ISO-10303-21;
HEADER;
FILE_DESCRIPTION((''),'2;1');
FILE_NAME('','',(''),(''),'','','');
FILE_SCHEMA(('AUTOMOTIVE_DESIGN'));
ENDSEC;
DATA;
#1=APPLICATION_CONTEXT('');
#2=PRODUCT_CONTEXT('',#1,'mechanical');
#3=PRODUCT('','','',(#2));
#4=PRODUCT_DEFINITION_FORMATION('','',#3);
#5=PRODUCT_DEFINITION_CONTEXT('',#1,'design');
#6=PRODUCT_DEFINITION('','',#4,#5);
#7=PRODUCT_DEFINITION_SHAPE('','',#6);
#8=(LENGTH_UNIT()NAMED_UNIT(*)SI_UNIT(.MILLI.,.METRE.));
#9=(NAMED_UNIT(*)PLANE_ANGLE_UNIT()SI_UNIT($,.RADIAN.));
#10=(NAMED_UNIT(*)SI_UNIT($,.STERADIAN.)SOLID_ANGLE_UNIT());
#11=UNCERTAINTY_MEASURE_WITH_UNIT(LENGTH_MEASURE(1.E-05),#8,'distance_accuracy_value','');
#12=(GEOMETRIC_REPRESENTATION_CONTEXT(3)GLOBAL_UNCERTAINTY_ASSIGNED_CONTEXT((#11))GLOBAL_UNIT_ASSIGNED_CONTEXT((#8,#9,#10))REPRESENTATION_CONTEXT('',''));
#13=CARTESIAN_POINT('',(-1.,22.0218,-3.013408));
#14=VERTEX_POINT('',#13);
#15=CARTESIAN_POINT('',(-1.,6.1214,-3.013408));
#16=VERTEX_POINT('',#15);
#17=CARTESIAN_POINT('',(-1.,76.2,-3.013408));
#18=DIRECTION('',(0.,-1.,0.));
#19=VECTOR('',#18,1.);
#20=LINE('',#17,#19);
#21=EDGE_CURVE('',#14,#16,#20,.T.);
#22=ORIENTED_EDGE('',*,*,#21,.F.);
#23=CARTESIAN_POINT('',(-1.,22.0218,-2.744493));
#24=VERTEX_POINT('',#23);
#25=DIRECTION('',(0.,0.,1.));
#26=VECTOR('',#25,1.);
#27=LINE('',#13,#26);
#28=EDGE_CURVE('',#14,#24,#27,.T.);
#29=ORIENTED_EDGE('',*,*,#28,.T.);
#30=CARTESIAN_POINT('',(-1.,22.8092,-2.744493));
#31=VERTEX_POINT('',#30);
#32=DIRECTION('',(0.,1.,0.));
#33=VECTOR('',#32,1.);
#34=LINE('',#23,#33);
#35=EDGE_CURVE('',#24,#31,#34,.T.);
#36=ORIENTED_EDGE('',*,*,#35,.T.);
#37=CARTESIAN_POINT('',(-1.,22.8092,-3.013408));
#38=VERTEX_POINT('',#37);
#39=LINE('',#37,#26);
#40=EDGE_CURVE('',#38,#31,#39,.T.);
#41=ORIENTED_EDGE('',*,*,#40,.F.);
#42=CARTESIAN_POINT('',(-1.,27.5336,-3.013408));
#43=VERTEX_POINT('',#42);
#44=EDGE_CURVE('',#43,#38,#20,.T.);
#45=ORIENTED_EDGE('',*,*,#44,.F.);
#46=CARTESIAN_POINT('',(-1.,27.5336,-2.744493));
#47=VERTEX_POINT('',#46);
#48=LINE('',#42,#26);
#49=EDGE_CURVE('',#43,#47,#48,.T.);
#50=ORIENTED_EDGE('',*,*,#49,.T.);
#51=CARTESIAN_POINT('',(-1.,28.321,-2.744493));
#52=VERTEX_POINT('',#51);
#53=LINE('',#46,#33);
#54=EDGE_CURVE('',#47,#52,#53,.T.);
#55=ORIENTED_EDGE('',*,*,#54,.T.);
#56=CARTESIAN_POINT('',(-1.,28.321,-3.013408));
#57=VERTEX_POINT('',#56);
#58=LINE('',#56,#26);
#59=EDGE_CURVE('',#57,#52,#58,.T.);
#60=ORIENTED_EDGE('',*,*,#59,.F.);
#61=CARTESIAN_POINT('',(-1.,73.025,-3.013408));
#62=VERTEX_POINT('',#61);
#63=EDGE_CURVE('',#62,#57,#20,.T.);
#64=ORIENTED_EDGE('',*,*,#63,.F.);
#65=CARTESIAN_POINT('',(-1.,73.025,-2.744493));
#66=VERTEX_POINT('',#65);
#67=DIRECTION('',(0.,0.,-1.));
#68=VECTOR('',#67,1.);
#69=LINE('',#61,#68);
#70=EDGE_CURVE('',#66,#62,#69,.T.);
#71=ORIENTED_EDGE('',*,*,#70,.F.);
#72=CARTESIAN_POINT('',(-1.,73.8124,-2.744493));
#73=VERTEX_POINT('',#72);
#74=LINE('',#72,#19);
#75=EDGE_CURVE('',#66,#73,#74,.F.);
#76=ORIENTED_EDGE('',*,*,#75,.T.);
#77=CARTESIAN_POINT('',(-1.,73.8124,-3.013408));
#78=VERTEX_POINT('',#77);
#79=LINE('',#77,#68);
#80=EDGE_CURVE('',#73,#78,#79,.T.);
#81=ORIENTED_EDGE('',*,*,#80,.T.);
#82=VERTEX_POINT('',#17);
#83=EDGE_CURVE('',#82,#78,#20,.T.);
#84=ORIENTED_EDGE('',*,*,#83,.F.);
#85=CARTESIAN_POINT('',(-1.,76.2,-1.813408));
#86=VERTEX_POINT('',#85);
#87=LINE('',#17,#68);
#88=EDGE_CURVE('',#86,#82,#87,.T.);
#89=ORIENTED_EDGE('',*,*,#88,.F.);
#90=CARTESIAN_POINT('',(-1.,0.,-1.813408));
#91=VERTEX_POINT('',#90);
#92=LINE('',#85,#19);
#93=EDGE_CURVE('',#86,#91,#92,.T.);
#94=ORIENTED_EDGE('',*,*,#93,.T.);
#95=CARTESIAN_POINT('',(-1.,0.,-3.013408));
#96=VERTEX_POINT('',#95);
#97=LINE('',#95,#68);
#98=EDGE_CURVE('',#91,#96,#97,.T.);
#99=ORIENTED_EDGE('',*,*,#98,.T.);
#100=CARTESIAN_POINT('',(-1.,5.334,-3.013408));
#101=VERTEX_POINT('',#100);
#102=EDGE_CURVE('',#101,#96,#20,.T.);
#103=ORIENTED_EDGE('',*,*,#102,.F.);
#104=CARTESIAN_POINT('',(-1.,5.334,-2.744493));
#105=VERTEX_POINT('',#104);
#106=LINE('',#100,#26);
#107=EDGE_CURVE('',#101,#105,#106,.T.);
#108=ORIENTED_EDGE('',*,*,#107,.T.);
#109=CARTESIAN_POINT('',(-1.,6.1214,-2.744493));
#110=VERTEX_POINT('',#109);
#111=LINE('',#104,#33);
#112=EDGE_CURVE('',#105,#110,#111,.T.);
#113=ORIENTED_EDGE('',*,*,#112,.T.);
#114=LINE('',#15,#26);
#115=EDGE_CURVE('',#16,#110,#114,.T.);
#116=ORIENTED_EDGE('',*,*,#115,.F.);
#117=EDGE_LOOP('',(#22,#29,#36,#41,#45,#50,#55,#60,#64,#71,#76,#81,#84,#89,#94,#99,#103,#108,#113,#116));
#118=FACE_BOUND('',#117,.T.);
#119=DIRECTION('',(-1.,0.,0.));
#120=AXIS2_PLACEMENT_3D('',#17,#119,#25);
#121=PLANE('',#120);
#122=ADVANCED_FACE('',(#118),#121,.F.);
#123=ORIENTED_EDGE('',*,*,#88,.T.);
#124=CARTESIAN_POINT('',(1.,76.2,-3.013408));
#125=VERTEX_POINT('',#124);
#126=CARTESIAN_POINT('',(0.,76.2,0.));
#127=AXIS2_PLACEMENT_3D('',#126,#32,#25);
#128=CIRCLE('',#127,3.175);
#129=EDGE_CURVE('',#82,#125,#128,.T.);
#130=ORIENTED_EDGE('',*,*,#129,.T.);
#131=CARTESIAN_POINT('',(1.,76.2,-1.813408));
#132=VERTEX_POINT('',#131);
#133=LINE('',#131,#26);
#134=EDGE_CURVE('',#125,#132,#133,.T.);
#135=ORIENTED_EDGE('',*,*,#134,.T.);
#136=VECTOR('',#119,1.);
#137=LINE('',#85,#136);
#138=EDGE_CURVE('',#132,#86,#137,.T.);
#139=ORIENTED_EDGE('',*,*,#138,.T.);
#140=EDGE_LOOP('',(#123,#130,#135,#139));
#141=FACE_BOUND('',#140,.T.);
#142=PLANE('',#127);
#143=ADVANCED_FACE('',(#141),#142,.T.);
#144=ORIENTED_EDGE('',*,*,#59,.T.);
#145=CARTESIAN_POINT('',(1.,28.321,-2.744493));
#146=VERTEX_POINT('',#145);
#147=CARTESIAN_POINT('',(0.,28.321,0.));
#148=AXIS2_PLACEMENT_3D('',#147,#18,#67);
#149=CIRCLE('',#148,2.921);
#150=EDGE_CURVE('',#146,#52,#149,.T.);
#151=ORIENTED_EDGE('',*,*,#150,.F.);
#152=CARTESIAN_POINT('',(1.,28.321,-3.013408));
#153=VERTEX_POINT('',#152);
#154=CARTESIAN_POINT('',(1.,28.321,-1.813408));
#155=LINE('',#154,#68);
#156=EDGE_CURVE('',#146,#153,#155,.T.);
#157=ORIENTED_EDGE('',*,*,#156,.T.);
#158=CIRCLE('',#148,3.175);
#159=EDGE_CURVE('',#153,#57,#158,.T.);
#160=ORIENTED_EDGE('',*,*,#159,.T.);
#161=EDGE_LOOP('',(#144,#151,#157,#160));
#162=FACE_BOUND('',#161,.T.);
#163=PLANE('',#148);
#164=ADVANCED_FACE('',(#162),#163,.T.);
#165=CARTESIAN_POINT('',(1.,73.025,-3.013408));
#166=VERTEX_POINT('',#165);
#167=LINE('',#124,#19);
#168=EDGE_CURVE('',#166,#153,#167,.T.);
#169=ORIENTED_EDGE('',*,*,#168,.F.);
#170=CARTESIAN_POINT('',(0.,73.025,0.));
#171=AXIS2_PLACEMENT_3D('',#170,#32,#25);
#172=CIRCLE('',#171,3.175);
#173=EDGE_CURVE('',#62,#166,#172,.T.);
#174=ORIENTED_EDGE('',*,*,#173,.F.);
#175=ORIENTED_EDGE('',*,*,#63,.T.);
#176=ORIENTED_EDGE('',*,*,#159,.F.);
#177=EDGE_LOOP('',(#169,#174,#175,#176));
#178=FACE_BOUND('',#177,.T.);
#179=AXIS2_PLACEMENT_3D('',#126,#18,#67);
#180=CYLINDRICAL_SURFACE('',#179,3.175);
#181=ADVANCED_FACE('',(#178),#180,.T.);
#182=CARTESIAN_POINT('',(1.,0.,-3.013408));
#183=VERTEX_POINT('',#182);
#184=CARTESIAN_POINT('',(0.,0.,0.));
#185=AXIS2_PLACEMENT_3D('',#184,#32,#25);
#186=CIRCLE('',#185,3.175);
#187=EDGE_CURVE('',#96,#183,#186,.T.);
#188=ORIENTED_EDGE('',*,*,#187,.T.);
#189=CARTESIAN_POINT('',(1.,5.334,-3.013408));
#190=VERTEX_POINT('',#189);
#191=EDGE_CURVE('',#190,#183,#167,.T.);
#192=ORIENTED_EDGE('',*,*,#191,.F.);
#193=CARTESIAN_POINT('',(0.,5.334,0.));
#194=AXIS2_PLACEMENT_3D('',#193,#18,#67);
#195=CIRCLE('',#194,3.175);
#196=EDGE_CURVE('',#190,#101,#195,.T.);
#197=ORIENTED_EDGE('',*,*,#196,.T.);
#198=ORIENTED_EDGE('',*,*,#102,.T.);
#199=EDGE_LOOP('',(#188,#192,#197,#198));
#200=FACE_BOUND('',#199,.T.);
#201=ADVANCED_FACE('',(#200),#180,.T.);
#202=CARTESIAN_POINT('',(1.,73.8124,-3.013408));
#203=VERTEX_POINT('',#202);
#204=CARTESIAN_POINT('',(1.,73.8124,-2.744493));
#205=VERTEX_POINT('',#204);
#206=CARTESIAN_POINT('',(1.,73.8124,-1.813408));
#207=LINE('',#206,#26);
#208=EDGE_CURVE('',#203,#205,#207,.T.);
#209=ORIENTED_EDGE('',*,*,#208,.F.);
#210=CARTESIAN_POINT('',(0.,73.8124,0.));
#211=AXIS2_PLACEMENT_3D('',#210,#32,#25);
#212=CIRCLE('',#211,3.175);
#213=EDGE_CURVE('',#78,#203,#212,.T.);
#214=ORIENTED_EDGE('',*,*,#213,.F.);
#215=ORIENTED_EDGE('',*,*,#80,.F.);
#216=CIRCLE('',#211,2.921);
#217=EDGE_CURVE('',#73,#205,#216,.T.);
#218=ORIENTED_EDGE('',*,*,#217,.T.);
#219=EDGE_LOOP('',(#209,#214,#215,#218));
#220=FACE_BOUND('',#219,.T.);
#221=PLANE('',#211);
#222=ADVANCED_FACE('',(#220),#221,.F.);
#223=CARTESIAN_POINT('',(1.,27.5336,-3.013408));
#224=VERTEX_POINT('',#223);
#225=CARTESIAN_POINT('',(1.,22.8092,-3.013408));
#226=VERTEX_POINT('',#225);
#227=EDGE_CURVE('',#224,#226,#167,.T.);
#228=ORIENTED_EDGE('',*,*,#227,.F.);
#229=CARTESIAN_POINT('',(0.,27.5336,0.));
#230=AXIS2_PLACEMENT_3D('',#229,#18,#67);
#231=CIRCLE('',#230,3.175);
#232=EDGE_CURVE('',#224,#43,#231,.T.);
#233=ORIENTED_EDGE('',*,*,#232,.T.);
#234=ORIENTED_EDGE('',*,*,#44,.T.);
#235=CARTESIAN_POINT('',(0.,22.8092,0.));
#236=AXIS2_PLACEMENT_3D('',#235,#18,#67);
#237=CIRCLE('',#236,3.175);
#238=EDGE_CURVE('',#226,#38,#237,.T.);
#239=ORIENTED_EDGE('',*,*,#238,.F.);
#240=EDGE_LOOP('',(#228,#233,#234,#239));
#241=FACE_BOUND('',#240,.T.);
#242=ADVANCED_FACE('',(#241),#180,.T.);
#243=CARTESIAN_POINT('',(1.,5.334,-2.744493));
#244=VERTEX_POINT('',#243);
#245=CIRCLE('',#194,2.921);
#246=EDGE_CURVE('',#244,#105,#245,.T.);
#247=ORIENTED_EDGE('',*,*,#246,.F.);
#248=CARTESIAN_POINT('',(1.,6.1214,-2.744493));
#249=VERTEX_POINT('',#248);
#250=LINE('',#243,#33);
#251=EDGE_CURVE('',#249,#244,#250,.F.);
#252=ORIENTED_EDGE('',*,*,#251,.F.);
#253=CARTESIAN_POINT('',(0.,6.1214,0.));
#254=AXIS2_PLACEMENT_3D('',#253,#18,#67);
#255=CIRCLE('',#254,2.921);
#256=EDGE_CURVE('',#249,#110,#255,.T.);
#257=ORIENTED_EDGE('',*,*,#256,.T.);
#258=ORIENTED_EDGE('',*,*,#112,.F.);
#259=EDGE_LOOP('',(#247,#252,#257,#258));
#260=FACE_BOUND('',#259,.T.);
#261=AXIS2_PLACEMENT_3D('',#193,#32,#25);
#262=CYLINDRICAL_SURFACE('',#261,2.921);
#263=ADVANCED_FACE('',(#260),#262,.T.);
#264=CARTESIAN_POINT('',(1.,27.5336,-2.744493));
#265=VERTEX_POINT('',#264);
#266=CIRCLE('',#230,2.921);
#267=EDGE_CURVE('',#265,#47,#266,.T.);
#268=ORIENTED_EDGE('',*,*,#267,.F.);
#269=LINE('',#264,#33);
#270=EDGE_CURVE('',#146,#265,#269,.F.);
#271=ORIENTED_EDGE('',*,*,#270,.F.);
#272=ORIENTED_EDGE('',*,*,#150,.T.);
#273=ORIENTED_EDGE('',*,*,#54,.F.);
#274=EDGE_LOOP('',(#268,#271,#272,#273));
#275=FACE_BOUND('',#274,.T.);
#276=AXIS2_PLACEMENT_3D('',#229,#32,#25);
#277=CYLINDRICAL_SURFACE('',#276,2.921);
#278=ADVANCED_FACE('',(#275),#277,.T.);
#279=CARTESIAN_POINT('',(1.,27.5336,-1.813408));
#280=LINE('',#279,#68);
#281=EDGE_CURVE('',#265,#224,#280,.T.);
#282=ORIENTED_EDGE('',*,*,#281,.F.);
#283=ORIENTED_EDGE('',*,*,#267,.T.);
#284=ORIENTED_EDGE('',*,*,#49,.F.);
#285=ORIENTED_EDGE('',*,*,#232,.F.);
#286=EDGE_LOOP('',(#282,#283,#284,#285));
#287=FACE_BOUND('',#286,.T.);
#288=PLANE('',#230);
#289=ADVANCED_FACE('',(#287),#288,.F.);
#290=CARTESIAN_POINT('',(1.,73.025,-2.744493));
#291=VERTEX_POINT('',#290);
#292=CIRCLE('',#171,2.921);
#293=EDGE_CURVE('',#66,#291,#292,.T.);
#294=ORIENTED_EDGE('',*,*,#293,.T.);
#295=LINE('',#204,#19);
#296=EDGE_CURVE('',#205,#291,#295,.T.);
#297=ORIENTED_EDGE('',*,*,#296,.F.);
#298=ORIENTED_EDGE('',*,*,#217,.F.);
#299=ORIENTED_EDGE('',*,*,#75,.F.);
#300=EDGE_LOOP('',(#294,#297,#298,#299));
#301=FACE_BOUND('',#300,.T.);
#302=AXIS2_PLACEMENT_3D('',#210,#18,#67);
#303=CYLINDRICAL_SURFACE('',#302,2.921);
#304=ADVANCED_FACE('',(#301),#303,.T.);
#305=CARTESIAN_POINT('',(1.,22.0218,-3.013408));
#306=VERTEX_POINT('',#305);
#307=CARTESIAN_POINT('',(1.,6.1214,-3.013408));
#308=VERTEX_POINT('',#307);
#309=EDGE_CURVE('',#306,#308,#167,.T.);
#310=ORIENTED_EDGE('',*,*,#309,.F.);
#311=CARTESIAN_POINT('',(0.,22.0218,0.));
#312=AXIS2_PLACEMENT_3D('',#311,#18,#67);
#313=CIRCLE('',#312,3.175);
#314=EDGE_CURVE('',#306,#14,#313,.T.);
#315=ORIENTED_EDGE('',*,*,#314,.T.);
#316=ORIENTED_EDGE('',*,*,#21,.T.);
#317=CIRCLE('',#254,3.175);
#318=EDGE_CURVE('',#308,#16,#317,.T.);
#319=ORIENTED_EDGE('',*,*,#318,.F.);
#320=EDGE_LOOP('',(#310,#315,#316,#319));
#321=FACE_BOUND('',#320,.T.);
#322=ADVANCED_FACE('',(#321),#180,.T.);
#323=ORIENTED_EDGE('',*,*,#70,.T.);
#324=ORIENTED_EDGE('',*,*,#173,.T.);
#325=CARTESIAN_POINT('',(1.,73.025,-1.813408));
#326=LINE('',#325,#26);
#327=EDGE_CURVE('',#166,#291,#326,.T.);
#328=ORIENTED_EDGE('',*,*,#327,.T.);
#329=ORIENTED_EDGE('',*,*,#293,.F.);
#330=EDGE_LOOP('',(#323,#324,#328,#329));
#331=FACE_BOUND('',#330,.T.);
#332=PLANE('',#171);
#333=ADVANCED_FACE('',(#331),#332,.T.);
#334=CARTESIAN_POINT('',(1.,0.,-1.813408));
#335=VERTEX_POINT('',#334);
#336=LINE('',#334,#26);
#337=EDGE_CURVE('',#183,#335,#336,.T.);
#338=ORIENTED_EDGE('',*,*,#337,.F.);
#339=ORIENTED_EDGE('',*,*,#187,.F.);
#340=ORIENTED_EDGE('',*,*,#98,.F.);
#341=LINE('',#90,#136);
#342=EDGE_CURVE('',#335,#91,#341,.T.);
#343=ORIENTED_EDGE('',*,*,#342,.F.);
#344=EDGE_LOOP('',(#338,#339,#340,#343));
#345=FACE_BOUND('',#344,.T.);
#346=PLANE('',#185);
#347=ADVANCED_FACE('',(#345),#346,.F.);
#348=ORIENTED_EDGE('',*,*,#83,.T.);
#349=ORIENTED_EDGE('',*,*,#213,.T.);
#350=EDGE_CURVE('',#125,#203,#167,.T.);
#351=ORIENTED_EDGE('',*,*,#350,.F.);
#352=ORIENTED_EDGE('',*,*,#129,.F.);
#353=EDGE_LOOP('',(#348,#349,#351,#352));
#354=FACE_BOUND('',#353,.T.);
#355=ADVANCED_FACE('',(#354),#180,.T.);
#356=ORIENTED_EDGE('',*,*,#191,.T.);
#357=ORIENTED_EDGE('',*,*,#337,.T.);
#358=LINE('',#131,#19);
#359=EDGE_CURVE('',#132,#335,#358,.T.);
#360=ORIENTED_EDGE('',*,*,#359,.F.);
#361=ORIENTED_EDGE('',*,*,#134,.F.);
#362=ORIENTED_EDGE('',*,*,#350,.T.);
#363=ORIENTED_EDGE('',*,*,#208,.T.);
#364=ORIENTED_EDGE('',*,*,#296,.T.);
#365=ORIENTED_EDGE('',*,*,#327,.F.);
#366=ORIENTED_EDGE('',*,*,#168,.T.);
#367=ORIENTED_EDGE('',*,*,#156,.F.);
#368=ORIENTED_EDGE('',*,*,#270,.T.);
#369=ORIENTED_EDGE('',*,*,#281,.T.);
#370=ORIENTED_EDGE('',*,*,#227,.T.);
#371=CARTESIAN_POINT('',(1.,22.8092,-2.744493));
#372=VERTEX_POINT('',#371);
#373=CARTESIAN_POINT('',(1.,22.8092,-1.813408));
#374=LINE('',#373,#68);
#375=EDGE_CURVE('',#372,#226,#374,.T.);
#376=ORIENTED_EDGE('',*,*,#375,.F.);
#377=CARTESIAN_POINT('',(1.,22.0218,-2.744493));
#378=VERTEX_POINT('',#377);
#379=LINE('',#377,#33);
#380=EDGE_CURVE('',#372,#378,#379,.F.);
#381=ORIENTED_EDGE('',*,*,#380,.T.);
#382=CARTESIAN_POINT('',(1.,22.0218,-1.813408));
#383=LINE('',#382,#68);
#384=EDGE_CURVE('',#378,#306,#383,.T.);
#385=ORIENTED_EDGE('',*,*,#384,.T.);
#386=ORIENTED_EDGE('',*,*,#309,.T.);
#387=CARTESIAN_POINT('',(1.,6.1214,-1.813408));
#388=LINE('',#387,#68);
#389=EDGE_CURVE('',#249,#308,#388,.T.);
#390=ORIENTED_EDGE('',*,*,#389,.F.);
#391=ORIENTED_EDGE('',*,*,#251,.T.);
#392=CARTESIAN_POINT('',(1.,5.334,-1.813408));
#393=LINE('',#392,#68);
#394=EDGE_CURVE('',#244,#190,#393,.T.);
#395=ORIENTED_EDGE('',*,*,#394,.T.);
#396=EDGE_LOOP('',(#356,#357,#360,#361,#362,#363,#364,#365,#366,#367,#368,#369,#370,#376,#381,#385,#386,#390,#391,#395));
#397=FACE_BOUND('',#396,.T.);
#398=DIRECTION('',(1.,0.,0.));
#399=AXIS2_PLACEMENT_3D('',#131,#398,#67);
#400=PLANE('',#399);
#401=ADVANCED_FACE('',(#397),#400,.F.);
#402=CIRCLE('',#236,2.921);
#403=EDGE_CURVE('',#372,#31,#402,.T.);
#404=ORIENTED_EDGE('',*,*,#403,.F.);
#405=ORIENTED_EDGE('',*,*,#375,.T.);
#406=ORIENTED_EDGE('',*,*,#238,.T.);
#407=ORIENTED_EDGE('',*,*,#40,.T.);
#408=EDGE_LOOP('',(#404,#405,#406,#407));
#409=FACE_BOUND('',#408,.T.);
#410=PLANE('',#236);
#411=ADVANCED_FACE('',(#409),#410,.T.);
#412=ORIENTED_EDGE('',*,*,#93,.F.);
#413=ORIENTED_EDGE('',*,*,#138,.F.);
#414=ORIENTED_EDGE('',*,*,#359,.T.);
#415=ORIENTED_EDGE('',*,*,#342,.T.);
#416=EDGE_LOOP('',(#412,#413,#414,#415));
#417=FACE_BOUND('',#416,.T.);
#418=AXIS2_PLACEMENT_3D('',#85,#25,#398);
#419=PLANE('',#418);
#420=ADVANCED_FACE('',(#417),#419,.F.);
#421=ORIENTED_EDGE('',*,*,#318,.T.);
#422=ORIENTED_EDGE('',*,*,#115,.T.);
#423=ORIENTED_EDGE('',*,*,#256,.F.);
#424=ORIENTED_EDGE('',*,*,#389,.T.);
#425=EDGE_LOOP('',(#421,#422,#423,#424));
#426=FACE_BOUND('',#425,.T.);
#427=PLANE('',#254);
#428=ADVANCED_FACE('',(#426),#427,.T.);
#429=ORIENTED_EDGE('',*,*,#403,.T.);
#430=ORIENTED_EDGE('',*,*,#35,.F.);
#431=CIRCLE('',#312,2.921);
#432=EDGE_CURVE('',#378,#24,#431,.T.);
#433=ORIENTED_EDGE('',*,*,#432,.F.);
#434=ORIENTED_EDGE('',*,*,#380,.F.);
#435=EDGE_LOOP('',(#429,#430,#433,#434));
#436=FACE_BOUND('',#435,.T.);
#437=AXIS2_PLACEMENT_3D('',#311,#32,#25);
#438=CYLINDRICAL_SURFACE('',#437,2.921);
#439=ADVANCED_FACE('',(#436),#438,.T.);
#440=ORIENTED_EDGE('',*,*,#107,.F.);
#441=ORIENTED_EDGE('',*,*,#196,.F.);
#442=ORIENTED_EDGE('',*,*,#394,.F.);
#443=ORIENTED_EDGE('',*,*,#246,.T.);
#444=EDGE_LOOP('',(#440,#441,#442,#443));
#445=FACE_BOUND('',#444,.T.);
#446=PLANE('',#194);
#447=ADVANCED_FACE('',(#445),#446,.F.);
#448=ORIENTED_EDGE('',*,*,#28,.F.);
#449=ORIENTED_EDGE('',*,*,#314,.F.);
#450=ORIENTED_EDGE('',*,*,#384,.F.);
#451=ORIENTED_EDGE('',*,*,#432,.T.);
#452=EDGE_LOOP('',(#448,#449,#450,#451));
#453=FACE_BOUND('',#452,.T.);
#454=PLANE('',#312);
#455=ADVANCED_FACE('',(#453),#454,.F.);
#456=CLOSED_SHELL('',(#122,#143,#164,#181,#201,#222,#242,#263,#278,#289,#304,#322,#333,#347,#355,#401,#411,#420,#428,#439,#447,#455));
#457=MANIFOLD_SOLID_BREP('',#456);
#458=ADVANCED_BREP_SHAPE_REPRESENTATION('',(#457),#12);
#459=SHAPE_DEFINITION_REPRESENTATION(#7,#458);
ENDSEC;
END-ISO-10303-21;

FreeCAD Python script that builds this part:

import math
import FreeCAD as App
import Part
import Sketcher
from FreeCAD import Vector
Q = App.Units.Quantity

doc = App.newDocument("Part")
body = doc.addObject("PartDesign::Body", "Body")

sketch1 = body.newObject("Sketcher::SketchObject", "Sketch")
sketch1.AttachmentSupport = (doc.getObject("XZ_Plane"), [""])
sketch1.MapMode = "FlatFace"
sketch1.addGeometry(Part.LineSegment(Vector(-1, -1.8, 0), Vector(-1, -3, 0)), False)
sketch1.addGeometry(Part.ArcOfCircle(Part.Circle(Vector(0, 0, 0), Vector(0, 0, 1), 3.2), math.radians(-72), math.radians(252)), False)
sketch1.addGeometry(Part.LineSegment(Vector(1, -3, 0), Vector(1, -1.8, 0)), False)
sketch1.addGeometry(Part.LineSegment(Vector(1, -1.8, 0), Vector(-1, -1.8, 0)), False)
sketch1.addConstraint(Sketcher.Constraint("Coincident", 0, 2, 1, 2))
sketch1.addConstraint(Sketcher.Constraint("Coincident", 1, 1, 2, 1))
sketch1.addConstraint(Sketcher.Constraint("Coincident", 2, 2, 3, 1))
sketch1.addConstraint(Sketcher.Constraint("Coincident", 3, 2, 0, 1))
sketch1.addConstraint(Sketcher.Constraint("Vertical", 0))
sketch1.addConstraint(Sketcher.Constraint("Vertical", 2))
sketch1.addConstraint(Sketcher.Constraint("Horizontal", 3))
sketch1.addConstraint(Sketcher.Constraint("Coincident", 1, 3, -1, 1))
sketch1.addConstraint(Sketcher.Constraint("Horizontal", 0, 2, 1, 1))
sketch1.addConstraint(Sketcher.Constraint("Radius", 1, Q("0.125 in")))
sketch1.addConstraint(Sketcher.Constraint("DistanceX", 3, 2, 3, 1, Q("2 mm")))
sketch1.addConstraint(Sketcher.Constraint("DistanceY", 0, 2, 0, 1, Q("1.2 mm")))
pad1 = body.newObject("PartDesign::Pad", "Pad")
pad1.Profile = sketch1
pad1.Length = Q("3 in")
pad1.Reversed = True

sketch2 = body.newObject("Sketcher::SketchObject", "Sketch001")
sketch2.AttachmentSupport = (doc.getObject("XZ_Plane"), [""])
sketch2.MapMode = "FlatFace"
sketch2.AttachmentOffset = App.Placement(Vector(0, 0, -2.875 * 25.4), App.Rotation())
sketch2.addGeometry(Part.Circle(Vector(0, 0, 0), Vector(0, 0, 1), 3.2), False)
sketch2.addGeometry(Part.Circle(Vector(0, 0, 0), Vector(0, 0, 1), 2.9), False)
sketch2.addConstraint(Sketcher.Constraint("Coincident", 0, 3, -1, 1))
sketch2.addConstraint(Sketcher.Constraint("Coincident", 1, 3, -1, 1))
sketch2.addConstraint(Sketcher.Constraint("Diameter", 0, Q("0.25 in")))
sketch2.addConstraint(Sketcher.Constraint("Diameter", 1, Q("0.23 in")))
pocket1 = body.newObject("PartDesign::Pocket", "Pocket")
pocket1.Profile = sketch2
pocket1.Length = Q("0.031 in")

sketch3 = body.newObject("Sketcher::SketchObject", "Sketch002")
sketch3.AttachmentSupport = (doc.getObject("XZ_Plane"), [""])
sketch3.MapMode = "FlatFace"
sketch3.AttachmentOffset = App.Placement(Vector(0, 0, -1.115 * 25.4), App.Rotation())
sketch3.addGeometry(Part.Circle(Vector(0, 0, 0), Vector(0, 0, 1), 3.2), False)
sketch3.addGeometry(Part.Circle(Vector(0, 0, 0), Vector(0, 0, 1), 2.9), False)
sketch3.addConstraint(Sketcher.Constraint("Coincident", 0, 3, -1, 1))
sketch3.addConstraint(Sketcher.Constraint("Coincident", 1, 3, -1, 1))
sketch3.addConstraint(Sketcher.Constraint("Diameter", 0, Q("0.25 in")))
sketch3.addConstraint(Sketcher.Constraint("Diameter", 1, Q("0.23 in")))
pocket2 = body.newObject("PartDesign::Pocket", "Pocket001")
pocket2.Profile = sketch3
pocket2.Length = Q("0.031 in")
pocket2.Reversed = True

sketch4 = body.newObject("Sketcher::SketchObject", "Sketch003")
sketch4.AttachmentSupport = (doc.getObject("XZ_Plane"), [""])
sketch4.MapMode = "FlatFace"
sketch4.AttachmentOffset = App.Placement(Vector(0, 0, -0.898 * 25.4), App.Rotation())
sketch4.addGeometry(Part.Circle(Vector(0, 0, 0), Vector(0, 0, 1), 3.2), False)
sketch4.addGeometry(Part.Circle(Vector(0, 0, 0), Vector(0, 0, 1), 2.9), False)
sketch4.addConstraint(Sketcher.Constraint("Coincident", 0, 3, -1, 1))
sketch4.addConstraint(Sketcher.Constraint("Coincident", 1, 3, -1, 1))
sketch4.addConstraint(Sketcher.Constraint("Diameter", 0, Q("0.25 in")))
sketch4.addConstraint(Sketcher.Constraint("Diameter", 1, Q("0.23 in")))
pocket3 = body.newObject("PartDesign::Pocket", "Pocket002")
pocket3.Profile = sketch4
pocket3.Length = Q("0.031 in")
pocket3.Reversed = True

sketch5 = body.newObject("Sketcher::SketchObject", "Sketch004")
sketch5.AttachmentSupport = (doc.getObject("XZ_Plane"), [""])
sketch5.MapMode = "FlatFace"
sketch5.AttachmentOffset = App.Placement(Vector(0, 0, -0.241 * 25.4), App.Rotation())
sketch5.addGeometry(Part.Circle(Vector(0, 0, 0), Vector(0, 0, 1), 3.2), False)
sketch5.addGeometry(Part.Circle(Vector(0, 0, 0), Vector(0, 0, 1), 2.9), False)
sketch5.addConstraint(Sketcher.Constraint("Coincident", 0, 3, -1, 1))
sketch5.addConstraint(Sketcher.Constraint("Coincident", 1, 3, -1, 1))
sketch5.addConstraint(Sketcher.Constraint("Diameter", 0, Q("0.25 in")))
sketch5.addConstraint(Sketcher.Constraint("Diameter", 1, Q("0.23 in")))
pocket4 = body.newObject("PartDesign::Pocket", "Pocket003")
pocket4.Profile = sketch5
pocket4.Length = Q("0.031 in")
pocket4.Reversed = True

doc.recompute()
